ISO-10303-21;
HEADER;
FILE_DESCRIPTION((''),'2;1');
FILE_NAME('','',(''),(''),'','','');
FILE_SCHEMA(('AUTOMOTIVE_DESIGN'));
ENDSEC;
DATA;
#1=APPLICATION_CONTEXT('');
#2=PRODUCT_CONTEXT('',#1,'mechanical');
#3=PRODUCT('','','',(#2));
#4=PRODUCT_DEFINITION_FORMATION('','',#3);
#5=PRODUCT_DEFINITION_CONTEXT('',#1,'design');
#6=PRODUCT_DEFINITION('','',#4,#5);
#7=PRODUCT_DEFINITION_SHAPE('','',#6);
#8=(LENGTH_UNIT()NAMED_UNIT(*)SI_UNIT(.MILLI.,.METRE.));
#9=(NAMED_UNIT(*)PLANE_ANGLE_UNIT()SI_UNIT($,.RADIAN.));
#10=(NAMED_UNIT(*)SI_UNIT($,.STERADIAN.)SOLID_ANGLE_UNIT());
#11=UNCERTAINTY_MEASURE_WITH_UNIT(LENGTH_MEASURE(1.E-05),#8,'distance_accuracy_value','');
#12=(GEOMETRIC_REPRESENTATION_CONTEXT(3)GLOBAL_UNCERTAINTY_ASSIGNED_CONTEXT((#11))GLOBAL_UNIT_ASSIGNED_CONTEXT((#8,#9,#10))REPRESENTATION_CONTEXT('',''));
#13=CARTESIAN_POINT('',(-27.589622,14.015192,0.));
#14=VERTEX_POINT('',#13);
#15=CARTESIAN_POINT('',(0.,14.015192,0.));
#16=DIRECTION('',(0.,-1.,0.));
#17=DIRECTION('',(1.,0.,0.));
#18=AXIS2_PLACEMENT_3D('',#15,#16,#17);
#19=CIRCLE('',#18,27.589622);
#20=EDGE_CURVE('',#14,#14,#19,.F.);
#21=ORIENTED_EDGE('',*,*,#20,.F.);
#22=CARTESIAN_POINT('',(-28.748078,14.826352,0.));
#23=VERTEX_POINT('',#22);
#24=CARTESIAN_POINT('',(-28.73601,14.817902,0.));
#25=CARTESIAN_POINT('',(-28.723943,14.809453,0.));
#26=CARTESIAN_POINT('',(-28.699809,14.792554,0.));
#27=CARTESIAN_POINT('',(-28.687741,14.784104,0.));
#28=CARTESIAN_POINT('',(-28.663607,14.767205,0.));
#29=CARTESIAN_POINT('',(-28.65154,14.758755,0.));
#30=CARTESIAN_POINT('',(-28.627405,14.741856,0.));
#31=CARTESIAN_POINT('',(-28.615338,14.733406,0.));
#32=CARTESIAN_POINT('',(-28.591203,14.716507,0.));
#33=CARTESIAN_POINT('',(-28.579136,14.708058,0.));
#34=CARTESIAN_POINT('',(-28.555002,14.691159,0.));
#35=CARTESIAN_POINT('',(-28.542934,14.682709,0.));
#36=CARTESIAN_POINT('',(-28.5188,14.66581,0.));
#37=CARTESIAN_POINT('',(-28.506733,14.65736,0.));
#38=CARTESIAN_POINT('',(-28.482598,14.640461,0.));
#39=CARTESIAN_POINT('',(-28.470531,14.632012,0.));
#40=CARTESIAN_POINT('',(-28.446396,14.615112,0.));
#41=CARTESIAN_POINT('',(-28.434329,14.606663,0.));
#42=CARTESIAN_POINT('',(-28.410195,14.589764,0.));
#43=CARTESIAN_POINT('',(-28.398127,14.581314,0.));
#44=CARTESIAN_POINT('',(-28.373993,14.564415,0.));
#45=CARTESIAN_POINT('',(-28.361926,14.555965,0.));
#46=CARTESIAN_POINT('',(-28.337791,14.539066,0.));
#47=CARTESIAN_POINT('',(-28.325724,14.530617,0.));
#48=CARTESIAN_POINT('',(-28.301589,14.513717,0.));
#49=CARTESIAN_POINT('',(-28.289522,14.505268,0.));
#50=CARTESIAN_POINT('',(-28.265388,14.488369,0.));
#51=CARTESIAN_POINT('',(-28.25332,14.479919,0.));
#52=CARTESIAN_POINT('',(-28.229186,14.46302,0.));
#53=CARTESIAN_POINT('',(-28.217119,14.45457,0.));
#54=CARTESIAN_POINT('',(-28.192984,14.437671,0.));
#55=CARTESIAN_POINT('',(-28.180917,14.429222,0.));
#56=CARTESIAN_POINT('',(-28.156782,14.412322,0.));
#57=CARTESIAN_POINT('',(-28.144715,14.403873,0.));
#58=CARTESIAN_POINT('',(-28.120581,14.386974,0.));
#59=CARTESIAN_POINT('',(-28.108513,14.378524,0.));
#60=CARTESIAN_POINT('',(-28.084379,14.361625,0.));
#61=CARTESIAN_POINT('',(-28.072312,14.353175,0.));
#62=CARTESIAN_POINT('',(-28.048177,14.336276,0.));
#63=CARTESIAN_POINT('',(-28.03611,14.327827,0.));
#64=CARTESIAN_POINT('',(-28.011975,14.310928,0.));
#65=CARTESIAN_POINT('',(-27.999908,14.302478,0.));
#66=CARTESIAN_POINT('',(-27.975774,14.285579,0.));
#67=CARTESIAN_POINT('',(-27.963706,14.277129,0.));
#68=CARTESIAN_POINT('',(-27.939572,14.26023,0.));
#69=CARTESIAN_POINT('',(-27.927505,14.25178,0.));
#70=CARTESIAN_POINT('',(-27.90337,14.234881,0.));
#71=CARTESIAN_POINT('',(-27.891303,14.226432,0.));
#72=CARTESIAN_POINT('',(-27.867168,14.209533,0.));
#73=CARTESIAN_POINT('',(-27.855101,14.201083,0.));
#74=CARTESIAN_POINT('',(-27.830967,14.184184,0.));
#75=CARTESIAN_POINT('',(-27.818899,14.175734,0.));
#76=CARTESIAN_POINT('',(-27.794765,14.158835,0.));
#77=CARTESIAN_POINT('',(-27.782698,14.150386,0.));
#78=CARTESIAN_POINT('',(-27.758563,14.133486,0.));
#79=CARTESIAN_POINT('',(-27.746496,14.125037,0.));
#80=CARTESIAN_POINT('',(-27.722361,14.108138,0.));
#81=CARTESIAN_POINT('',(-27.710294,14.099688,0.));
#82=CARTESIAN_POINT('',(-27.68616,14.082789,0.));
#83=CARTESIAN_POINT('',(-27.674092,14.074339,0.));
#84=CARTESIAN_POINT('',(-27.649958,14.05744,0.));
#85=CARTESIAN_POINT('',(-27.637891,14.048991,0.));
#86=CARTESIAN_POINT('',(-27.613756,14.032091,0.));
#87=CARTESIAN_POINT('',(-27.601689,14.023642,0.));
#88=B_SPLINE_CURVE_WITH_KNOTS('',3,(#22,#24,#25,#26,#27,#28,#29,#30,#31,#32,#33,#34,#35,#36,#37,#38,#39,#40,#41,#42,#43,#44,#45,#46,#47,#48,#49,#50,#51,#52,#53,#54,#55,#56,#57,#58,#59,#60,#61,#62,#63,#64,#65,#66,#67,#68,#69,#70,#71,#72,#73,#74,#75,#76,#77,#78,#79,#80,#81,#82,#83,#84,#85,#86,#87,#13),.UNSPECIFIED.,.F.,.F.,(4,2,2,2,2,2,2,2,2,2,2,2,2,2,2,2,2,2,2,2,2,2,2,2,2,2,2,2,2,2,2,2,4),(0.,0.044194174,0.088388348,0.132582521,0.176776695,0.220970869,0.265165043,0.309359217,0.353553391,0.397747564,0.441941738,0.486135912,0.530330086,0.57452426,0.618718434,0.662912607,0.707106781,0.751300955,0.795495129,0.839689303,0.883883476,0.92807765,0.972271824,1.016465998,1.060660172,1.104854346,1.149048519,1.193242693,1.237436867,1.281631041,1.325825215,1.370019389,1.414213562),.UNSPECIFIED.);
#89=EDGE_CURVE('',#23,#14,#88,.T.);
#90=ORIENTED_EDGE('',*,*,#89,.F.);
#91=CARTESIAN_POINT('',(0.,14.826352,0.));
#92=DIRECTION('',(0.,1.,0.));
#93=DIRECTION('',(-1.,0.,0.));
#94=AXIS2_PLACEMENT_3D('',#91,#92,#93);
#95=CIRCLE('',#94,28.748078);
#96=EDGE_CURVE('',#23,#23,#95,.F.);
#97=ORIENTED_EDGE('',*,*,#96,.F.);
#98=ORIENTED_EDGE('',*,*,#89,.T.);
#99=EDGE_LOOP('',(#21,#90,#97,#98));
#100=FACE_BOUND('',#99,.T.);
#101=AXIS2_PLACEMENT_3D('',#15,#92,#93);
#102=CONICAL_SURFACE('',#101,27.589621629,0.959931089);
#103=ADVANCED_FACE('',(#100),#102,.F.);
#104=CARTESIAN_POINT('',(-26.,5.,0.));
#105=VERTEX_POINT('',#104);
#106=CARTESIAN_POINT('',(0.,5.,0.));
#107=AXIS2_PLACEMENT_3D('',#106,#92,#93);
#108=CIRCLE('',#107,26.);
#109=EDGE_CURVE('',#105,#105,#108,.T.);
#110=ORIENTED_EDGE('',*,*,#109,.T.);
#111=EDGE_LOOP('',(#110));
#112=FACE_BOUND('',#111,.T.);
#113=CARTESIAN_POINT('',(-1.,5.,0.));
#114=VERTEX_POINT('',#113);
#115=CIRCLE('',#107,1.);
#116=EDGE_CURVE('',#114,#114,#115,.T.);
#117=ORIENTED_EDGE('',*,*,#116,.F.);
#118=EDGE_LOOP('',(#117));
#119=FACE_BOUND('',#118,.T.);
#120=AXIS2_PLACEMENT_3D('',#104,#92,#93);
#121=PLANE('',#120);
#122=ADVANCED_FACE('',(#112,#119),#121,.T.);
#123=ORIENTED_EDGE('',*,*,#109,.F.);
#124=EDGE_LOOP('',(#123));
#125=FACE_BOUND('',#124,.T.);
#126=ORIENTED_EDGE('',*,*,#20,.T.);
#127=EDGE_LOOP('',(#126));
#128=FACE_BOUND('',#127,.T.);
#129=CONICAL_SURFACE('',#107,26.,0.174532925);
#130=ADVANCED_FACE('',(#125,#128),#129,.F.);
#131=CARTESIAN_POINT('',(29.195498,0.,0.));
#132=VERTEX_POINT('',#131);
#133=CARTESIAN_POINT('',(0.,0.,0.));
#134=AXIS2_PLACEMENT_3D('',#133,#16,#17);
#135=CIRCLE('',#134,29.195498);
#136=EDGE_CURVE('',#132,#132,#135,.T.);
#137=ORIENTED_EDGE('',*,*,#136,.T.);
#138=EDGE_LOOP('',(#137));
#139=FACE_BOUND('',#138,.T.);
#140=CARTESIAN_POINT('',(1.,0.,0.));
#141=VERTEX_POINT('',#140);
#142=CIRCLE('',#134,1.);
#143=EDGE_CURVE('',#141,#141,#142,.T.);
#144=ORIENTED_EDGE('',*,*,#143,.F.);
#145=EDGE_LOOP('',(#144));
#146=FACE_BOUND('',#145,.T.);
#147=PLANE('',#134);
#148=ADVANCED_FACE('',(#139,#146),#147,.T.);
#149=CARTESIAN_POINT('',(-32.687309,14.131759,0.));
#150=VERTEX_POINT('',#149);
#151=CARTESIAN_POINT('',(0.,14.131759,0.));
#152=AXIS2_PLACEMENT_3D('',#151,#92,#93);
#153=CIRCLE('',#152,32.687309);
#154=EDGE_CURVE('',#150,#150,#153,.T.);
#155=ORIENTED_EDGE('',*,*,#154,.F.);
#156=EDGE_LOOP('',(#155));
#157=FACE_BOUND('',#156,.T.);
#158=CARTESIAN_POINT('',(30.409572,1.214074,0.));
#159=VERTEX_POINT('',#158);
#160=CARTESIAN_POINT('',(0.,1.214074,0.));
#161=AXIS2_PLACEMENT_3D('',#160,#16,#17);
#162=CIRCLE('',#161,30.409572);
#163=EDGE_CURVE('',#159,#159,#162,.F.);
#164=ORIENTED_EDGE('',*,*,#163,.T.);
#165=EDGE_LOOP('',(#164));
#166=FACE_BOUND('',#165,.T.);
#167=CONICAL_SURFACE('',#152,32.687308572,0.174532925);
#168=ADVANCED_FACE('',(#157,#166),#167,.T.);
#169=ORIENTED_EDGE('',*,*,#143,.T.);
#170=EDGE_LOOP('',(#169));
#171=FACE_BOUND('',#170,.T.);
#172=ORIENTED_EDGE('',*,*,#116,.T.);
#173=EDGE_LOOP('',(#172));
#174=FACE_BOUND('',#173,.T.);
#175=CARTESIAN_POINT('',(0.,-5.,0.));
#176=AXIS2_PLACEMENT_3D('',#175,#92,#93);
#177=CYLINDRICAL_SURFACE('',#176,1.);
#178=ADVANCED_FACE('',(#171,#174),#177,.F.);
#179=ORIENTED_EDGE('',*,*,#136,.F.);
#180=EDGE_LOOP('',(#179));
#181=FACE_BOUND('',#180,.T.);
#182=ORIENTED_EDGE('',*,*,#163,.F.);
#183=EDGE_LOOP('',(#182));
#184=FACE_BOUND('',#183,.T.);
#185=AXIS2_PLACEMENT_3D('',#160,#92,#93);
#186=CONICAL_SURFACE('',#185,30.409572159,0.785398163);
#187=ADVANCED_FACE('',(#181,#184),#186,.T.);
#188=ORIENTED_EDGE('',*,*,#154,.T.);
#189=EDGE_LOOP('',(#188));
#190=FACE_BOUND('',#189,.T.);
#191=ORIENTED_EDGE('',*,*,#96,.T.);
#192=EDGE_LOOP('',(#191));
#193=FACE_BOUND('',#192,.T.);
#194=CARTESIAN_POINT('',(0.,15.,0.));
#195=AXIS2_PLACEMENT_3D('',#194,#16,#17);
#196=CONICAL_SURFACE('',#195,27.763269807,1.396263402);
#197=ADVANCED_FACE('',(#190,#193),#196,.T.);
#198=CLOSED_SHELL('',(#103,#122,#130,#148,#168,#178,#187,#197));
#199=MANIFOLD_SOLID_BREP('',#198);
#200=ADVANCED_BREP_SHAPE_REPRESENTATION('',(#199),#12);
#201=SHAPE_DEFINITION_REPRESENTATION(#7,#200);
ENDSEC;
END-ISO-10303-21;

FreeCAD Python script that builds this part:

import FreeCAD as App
import Part
import Sketcher
Q = App.Units.Quantity


def edges_at(feature, points):
    """Names of the edges that pass closest to the given points."""
    edges = feature.Shape.Edges
    near = lambda p: min(range(len(edges)), key=lambda i: edges[i].distToShape(Part.Vertex(*p))[0])
    return sorted({f"Edge{near(p) + 1}" for p in points})

doc = App.newDocument("Part")
params = doc.addObject("Spreadsheet::Sheet", "Params")
for row, (alias, value) in enumerate([
    ("sketch1_width", "26 mm"),
    ("sketch1_height", "5 mm"),
    ("sketch1_length", "5 mm"),
    ("revolution_angle", "360 deg"),
    ("chamfer_size", "1 mm"),
    ("chamfer_size2", "1.232803 mm"),
    ("chamfer2_size", "1 mm"),
    ("sketch2_diameter", "2 mm"),
    ("pocket1_length", "10 mm"),
], start=1):
    params.set(f"A{row}", alias)
    params.set(f"B{row}", "=" + value)
    params.setAlias(f"B{row}", alias)

body = doc.addObject("PartDesign::Body", "Body")

sketch1 = body.newObject("Sketcher::SketchObject", "Sketch")
sketch1.AttachmentSupport = (doc.getObject("XY_Plane"), [""])
sketch1.MapMode = "FlatFace"
sketch1.addGeometry(Part.LineSegment(App.Vector(-30.2, 0, 0), App.Vector(0, 0, 0)), False)
sketch1.addGeometry(Part.LineSegment(App.Vector(0, 0, 0), App.Vector(0, 5, 0)), False)
sketch1.addGeometry(Part.LineSegment(App.Vector(0, 5, 0), App.Vector(-26, 5, 0)), False)
sketch1.addGeometry(Part.LineSegment(App.Vector(-26, 5, 0), App.Vector(-27.8, 15, 0)), False)
sketch1.addGeometry(Part.LineSegment(App.Vector(-27.8, 15, 0), App.Vector(-32.7, 14.1, 0)), False)
sketch1.addGeometry(Part.LineSegment(App.Vector(-32.7, 14.1, 0), App.Vector(-30.2, 0, 0)), False)
sketch1.addConstraint(Sketcher.Constraint("Coincident", 0, 2, 1, 1))
sketch1.addConstraint(Sketcher.Constraint("Coincident", 1, 2, 2, 1))
sketch1.addConstraint(Sketcher.Constraint("Coincident", 2, 2, 3, 1))
sketch1.addConstraint(Sketcher.Constraint("Coincident", 3, 2, 4, 1))
sketch1.addConstraint(Sketcher.Constraint("Coincident", 4, 2, 5, 1))
sketch1.addConstraint(Sketcher.Constraint("Coincident", 5, 2, 0, 1))
sketch1.addConstraint(Sketcher.Constraint("Horizontal", 0))
sketch1.addConstraint(Sketcher.Constraint("Vertical", 1))
sketch1.addConstraint(Sketcher.Constraint("Horizontal", 2))
sketch1.addConstraint(Sketcher.Constraint("Coincident", 0, 2, -1, 1))
sketch1.addConstraint(Sketcher.Constraint("Perpendicular", 3, 4))
sketch1.addConstraint(Sketcher.Constraint("Perpendicular", 4, 5))
sketch1.addConstraint(Sketcher.Constraint("DistanceX", 2, 2, 2, 1, 26.0))
sketch1.addConstraint(Sketcher.Constraint("DistanceY", 1, 1, 1, 2, 5.0))
sketch1.addConstraint(Sketcher.Constraint("Angle", 3, Q("100 deg")))
sketch1.addConstraint(Sketcher.Constraint("Distance", 4, 5.0))
sketch1.addConstraint(Sketcher.Constraint("DistanceY", -1, 1, 3, 2, 15.0))
sketch1.setExpression("Constraints[12]", "Params.sketch1_width")
sketch1.setExpression("Constraints[13]", "Params.sketch1_height")
sketch1.setExpression("Constraints[15]", "Params.sketch1_length")
revolution = body.newObject("PartDesign::Revolution", "Revolution")
revolution.Profile = sketch1
revolution.ReferenceAxis = (sketch1, ["V_Axis"])
revolution.setExpression("Angle", "Params.revolution_angle")
doc.recompute()

chamfer = body.newObject("PartDesign::Chamfer", "Chamfer")
chamfer.Base = (revolution, edges_at(revolution, [(30.195, 0, 0)]))
chamfer.ChamferType = "Two distances"
chamfer.setExpression("Size", "Params.chamfer_size")
chamfer.setExpression("Size2", "Params.chamfer_size2")
doc.recompute()

chamfer2 = body.newObject("PartDesign::Chamfer", "Chamfer001")
chamfer2.Base = (chamfer, edges_at(chamfer, [(27.763, 15, 0)]))
chamfer2.setExpression("Size", "Params.chamfer2_size")

sketch2 = body.newObject("Sketcher::SketchObject", "Sketch001")
sketch2.AttachmentSupport = (doc.getObject("XZ_Plane"), [""])
sketch2.MapMode = "FlatFace"
sketch2.AttachmentOffset = App.Placement(App.Vector(0, 0, -5), App.Rotation())
sketch2.addGeometry(Part.Circle(App.Vector(0, 0, 0), App.Vector(0, 0, 1), 1), False)
sketch2.addConstraint(Sketcher.Constraint("Coincident", 0, 3, -1, 1))
sketch2.addConstraint(Sketcher.Constraint("Diameter", 0, 2.0))
sketch2.setExpression("Constraints[1]", "Params.sketch2_diameter")
pocket1 = body.newObject("PartDesign::Pocket", "Pocket")
pocket1.Profile = sketch2
pocket1.setExpression("Length", "Params.pocket1_length")
pocket1.Reversed = True

doc.recompute()
